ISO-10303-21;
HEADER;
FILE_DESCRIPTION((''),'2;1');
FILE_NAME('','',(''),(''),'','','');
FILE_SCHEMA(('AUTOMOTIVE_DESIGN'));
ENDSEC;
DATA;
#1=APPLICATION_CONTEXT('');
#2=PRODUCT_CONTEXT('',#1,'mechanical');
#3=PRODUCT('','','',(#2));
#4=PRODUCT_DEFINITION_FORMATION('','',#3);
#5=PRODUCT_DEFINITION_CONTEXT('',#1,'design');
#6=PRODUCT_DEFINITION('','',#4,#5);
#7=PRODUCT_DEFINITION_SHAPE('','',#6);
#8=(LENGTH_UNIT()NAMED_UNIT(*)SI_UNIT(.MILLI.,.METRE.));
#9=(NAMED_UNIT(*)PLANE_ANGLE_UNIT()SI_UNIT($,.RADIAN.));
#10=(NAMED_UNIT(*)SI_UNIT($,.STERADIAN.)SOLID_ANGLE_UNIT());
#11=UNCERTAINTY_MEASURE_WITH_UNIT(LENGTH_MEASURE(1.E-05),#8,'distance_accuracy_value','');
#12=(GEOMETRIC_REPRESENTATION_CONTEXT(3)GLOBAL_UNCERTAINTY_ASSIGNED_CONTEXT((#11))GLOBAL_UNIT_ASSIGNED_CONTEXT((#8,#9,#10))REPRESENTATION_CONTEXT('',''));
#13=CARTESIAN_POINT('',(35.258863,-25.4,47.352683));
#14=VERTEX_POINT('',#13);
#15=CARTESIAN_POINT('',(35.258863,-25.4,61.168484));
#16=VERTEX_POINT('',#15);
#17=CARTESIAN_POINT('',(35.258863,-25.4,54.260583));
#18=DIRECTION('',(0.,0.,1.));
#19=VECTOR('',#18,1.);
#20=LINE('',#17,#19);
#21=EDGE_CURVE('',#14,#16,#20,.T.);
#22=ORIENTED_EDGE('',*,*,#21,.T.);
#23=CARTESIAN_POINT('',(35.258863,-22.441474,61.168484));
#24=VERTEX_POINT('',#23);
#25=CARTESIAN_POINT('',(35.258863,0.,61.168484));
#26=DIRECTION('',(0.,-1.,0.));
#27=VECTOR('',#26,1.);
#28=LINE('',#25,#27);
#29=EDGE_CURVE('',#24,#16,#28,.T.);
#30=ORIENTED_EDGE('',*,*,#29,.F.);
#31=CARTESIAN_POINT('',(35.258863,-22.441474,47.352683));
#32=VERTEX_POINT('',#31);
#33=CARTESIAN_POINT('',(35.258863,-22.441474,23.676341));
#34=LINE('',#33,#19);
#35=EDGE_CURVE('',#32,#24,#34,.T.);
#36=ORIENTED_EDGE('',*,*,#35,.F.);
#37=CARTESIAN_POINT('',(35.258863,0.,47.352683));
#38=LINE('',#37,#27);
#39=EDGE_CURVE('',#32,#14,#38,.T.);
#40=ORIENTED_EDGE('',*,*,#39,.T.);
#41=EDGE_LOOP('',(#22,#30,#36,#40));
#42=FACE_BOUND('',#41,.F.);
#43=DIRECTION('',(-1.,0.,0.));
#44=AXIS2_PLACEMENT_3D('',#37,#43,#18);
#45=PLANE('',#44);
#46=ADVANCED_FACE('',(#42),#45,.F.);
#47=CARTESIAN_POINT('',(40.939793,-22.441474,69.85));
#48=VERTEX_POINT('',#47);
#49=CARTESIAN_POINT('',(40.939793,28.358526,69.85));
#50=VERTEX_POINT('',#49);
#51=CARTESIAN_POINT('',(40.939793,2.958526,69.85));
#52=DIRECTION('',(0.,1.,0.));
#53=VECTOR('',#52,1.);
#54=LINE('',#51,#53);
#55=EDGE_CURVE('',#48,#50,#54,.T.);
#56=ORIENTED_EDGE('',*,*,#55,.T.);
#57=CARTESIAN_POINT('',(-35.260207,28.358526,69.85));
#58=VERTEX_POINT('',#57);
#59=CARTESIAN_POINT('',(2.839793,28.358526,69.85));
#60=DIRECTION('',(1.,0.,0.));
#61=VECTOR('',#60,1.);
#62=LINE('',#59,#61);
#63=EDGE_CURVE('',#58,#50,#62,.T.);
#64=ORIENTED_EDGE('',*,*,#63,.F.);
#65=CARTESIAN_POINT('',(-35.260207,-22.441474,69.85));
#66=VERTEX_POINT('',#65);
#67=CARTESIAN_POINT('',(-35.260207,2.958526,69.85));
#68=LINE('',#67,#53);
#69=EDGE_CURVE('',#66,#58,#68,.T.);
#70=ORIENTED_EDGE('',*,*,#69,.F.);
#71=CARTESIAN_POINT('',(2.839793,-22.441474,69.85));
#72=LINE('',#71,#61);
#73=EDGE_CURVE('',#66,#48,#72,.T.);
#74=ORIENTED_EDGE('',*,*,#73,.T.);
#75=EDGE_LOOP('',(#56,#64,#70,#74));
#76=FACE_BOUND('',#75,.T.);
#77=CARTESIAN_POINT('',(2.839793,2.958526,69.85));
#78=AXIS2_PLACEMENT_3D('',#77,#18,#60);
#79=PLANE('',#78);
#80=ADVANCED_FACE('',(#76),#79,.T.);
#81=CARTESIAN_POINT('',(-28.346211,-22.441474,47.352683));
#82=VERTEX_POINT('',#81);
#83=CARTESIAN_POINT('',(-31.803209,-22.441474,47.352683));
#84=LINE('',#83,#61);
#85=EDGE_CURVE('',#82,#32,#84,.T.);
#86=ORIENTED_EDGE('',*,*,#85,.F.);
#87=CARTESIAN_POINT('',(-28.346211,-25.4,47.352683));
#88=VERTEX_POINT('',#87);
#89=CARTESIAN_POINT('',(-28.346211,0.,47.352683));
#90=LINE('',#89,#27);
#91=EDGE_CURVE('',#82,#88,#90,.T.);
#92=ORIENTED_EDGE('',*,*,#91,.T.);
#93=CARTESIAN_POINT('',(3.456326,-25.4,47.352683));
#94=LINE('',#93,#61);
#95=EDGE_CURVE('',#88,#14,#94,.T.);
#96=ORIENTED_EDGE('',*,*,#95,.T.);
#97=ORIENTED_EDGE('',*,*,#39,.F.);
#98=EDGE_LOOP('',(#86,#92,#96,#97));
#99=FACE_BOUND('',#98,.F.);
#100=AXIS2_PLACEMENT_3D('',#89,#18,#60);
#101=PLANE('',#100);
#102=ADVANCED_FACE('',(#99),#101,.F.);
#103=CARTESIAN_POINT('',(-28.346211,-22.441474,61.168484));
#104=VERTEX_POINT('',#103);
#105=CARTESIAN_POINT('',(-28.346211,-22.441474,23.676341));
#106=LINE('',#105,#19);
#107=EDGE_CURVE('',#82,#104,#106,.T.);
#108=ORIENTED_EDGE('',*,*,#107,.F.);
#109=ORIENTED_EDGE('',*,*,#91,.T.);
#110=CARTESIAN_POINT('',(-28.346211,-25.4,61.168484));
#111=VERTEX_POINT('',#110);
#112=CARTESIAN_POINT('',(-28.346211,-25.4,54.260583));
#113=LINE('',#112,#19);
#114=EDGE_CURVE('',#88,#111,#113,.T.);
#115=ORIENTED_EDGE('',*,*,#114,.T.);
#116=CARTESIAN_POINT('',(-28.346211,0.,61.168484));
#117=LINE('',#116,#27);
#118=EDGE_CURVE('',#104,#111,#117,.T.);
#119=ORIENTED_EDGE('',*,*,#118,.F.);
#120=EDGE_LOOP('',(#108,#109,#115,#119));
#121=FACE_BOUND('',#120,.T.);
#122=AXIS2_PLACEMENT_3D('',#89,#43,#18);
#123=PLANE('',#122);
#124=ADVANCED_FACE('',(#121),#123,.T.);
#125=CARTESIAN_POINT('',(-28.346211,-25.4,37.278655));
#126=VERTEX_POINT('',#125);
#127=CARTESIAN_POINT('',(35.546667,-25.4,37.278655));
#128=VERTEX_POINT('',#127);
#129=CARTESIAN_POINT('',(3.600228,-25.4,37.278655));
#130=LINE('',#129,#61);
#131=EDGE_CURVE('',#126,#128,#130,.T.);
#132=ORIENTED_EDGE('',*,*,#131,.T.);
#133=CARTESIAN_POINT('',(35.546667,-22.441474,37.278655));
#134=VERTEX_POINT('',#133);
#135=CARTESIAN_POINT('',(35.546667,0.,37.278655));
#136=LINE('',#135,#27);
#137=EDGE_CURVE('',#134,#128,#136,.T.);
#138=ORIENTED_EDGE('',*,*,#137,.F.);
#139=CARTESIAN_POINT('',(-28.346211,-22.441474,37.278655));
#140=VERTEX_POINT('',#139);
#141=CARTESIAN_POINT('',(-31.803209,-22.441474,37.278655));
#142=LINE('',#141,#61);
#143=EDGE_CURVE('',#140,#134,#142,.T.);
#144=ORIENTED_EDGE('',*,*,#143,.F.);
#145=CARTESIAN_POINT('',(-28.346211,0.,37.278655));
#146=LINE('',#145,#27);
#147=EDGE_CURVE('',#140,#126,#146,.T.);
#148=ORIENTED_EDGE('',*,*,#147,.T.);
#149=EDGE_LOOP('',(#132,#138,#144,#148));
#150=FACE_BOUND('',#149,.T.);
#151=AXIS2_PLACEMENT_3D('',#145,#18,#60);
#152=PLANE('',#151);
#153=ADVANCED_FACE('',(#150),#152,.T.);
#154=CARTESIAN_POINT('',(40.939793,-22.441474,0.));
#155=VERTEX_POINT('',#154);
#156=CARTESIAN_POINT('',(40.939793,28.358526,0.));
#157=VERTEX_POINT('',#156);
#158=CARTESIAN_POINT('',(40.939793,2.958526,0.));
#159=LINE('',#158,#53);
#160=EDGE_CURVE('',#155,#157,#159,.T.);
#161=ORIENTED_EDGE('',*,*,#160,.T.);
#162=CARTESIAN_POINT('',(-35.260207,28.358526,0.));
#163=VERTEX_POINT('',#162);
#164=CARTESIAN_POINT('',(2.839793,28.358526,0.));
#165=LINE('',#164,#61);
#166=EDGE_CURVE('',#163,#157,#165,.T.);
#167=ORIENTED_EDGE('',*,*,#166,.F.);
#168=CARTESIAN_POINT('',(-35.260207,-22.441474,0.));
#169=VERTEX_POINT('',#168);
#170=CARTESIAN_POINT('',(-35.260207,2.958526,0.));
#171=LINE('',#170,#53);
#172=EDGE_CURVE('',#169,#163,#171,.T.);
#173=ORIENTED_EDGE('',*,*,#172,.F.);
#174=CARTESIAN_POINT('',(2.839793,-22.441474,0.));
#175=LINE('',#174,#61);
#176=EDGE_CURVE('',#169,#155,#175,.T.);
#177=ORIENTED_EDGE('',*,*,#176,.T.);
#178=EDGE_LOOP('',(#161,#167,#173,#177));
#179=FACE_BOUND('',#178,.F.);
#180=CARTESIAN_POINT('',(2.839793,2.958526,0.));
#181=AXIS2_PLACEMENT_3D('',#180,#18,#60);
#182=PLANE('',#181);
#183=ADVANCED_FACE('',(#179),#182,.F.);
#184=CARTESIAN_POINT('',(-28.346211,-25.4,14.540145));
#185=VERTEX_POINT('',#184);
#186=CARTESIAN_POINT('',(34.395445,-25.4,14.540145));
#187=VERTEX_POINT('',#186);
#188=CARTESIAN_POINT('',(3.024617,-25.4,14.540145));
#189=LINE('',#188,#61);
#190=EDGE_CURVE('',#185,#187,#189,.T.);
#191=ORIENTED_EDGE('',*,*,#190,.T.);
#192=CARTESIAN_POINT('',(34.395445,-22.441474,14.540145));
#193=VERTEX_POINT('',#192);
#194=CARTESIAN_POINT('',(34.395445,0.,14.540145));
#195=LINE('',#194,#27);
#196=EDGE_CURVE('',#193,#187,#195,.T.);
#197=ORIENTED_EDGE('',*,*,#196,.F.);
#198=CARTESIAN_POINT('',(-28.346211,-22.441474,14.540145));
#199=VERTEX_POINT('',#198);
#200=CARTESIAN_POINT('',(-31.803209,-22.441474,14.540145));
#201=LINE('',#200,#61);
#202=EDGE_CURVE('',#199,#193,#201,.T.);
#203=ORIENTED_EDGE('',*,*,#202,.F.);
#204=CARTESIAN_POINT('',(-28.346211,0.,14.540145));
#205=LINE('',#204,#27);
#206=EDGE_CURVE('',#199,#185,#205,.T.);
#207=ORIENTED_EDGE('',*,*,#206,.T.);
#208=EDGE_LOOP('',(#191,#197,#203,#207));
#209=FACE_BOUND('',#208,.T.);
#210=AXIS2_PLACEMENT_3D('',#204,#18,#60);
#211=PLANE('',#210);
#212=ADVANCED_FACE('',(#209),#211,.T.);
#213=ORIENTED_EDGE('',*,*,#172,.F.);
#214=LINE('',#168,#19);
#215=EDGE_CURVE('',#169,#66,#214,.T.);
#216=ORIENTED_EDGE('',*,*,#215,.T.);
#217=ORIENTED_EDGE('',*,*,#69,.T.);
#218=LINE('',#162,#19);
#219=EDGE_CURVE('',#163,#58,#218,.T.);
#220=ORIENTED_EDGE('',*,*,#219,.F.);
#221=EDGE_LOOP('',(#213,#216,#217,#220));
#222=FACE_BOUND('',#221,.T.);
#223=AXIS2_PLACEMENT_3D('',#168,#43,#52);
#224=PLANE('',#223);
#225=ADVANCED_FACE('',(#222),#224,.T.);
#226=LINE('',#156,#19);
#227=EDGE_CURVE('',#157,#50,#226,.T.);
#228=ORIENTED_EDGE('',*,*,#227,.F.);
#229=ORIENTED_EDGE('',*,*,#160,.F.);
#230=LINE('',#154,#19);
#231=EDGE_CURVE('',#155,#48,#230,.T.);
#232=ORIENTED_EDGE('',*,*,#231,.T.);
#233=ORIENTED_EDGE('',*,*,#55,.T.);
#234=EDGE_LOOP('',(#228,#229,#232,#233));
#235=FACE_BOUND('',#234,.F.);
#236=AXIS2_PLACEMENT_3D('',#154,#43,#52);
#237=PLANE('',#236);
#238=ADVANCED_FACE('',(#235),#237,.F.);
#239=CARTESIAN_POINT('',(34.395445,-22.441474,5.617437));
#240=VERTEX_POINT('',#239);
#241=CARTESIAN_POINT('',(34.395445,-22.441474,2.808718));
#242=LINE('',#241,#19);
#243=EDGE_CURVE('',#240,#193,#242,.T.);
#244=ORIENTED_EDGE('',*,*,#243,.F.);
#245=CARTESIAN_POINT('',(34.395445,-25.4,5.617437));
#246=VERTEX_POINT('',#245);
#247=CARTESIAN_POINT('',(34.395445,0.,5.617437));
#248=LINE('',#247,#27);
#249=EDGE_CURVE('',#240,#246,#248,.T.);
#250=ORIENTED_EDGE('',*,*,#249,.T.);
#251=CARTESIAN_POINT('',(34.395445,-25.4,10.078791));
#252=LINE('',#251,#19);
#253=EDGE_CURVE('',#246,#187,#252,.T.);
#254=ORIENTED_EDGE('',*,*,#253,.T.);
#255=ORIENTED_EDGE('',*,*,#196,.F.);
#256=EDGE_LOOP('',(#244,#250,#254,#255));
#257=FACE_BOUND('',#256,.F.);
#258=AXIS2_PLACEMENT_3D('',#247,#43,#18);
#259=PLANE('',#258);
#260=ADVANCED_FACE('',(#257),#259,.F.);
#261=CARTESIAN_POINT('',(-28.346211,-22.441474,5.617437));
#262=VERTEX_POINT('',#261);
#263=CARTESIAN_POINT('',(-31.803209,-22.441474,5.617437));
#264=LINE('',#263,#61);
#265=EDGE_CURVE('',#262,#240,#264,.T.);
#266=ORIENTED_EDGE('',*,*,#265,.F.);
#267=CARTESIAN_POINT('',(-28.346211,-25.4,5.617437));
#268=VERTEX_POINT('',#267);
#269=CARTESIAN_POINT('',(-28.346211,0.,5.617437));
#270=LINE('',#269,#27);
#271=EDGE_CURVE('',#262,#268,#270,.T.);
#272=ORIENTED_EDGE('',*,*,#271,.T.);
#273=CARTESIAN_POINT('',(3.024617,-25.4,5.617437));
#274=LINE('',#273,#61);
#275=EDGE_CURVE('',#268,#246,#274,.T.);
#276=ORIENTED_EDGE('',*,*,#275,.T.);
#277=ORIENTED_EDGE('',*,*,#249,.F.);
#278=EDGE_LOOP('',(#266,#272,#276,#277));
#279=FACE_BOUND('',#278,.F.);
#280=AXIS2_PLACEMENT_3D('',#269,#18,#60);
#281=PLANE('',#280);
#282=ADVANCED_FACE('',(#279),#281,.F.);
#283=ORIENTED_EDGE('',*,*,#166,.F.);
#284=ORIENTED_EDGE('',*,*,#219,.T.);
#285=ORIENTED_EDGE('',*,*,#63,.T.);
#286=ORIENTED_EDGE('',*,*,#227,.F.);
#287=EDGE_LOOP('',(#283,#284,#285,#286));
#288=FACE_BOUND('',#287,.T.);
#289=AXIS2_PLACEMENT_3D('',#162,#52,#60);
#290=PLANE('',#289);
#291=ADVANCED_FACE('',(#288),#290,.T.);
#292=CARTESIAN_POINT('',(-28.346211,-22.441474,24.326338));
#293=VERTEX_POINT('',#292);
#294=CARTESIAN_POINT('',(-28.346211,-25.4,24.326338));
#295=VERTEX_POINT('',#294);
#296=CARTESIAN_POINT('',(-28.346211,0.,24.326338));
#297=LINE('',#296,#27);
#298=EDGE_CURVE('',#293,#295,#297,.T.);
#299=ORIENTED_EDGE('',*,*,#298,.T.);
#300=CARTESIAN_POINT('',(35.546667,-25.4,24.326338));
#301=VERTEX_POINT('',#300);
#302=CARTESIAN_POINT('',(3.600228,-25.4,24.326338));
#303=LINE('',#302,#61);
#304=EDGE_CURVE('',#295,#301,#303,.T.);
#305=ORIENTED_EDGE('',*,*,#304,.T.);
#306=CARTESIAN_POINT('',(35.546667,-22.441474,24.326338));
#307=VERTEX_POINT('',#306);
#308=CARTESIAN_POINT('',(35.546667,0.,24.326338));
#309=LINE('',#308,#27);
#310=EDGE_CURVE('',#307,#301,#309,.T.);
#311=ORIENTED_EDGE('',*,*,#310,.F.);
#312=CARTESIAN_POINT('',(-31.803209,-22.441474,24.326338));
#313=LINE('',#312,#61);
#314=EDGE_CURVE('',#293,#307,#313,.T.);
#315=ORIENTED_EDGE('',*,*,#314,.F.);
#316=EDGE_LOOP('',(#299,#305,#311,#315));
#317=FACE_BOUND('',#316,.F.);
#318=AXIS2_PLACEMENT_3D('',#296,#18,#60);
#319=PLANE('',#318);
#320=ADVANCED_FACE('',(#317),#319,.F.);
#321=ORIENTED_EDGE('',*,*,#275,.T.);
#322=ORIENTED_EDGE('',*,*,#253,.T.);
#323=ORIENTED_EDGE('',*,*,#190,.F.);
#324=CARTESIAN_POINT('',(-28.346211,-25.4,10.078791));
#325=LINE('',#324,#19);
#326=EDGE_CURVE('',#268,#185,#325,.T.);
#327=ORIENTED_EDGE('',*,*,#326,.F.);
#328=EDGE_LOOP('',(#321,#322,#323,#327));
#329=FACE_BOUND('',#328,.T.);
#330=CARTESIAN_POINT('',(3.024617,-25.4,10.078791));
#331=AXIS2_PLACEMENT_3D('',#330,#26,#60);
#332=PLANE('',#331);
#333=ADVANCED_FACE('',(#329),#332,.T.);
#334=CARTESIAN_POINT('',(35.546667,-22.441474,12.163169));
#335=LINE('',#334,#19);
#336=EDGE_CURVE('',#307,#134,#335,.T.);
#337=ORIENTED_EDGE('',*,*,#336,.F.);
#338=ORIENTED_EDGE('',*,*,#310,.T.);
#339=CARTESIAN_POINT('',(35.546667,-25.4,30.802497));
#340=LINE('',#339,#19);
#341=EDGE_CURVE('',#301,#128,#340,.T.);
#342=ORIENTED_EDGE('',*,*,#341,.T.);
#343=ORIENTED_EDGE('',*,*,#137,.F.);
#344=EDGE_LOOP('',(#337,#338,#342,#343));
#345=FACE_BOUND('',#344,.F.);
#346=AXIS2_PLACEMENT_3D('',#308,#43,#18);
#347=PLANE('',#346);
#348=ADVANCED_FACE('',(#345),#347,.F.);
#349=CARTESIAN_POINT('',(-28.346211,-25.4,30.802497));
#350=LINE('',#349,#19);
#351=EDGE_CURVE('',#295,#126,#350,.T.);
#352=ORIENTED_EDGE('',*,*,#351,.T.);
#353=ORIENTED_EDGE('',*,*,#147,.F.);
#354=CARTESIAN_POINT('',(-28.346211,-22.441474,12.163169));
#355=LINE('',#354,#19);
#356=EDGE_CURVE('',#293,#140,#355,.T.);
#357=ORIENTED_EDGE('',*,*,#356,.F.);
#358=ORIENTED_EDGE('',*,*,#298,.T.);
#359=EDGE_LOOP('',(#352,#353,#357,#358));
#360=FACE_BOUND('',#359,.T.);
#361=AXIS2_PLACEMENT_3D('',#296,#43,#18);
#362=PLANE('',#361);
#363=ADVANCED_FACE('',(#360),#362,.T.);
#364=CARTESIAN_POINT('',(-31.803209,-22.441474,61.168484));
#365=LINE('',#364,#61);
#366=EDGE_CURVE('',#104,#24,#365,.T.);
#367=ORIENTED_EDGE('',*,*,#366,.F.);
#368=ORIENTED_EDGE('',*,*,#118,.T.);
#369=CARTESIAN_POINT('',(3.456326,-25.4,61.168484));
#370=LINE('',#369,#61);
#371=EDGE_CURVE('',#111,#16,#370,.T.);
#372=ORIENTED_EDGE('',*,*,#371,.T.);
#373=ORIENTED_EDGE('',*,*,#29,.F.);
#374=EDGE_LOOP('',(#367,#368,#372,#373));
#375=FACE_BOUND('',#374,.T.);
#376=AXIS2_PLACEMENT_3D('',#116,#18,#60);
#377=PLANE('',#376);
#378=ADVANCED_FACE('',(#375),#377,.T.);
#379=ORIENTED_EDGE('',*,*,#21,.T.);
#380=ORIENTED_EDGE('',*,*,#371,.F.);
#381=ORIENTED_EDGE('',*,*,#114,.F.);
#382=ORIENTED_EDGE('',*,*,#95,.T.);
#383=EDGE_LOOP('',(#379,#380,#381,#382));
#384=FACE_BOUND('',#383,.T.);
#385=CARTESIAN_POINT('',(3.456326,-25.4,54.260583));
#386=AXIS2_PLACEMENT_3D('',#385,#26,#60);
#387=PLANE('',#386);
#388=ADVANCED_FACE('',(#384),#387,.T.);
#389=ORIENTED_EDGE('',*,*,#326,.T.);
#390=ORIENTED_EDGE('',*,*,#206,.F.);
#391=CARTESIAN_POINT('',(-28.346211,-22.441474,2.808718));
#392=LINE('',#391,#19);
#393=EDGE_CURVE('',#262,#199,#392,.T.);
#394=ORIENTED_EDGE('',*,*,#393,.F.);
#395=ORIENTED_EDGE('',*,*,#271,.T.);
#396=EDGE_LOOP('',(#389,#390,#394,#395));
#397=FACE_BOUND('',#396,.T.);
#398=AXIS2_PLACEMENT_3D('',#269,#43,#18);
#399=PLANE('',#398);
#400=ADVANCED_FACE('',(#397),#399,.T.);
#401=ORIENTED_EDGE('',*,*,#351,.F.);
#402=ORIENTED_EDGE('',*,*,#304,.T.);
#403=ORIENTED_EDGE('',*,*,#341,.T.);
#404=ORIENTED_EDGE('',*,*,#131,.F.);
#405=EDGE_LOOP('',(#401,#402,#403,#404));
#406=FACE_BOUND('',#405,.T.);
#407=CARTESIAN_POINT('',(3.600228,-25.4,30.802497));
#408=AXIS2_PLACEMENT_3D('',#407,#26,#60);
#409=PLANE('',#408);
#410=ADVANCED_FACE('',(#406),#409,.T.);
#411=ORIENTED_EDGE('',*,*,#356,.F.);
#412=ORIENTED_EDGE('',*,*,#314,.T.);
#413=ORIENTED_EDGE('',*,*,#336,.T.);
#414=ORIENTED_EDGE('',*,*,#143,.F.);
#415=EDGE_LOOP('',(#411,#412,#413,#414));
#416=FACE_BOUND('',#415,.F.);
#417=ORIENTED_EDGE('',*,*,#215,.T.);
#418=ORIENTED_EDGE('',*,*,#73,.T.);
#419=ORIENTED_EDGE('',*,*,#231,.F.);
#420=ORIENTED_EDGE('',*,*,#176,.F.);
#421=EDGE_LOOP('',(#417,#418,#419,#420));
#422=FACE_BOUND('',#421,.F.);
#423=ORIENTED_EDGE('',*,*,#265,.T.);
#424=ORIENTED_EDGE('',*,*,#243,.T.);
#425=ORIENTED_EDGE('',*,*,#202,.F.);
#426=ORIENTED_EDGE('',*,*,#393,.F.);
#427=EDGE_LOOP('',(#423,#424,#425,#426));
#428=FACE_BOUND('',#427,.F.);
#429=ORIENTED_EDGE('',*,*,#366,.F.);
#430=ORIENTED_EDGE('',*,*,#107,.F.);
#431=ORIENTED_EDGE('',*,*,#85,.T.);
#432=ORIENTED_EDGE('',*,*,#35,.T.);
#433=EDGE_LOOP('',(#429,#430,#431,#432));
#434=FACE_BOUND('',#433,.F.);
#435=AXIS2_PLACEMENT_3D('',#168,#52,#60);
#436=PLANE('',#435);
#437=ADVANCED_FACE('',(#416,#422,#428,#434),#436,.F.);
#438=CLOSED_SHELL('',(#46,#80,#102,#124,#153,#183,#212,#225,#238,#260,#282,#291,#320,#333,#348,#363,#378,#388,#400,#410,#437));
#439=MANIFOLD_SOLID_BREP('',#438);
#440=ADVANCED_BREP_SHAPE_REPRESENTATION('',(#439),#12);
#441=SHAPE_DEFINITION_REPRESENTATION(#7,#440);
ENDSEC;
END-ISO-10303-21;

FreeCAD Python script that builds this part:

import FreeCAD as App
import Part
import Sketcher

V = App.Vector
Q = App.Units.Quantity


def add_polygon(sketch, points):
    """Adds a closed chain of lines whose ends are joined by coincident constraints."""
    first, n = sketch.GeometryCount, len(points)
    for a, b in zip(points, points[1:] + points[:1]):
        sketch.addGeometry(Part.LineSegment(App.Vector(*a, 0), App.Vector(*b, 0)), False)
    for i in range(n):
        sketch.addConstraint(Sketcher.Constraint("Coincident", first + i, 2, first + (i + 1) % n, 1))

doc = App.newDocument("Part")
body = doc.addObject("PartDesign::Body", "Body")

# Sketch on XY plane
sketch1 = doc.addObject("Sketcher::SketchObject", "Sketch")
body.addObject(sketch1)
sketch1.AttachmentSupport = (doc.XY_Plane, [""])
sketch1.MapMode = "FlatFace"
add_polygon(sketch1, [(-35.260207, 28.358526), (-35.260207, -22.441474), (40.939793, -22.441474), (40.939793, 28.358526)])  # lines 0-3
sketch1.addConstraint([
    Sketcher.Constraint("Vertical", 0),
    Sketcher.Constraint("Horizontal", 1),
    Sketcher.Constraint("Vertical", 2),
    Sketcher.Constraint("Horizontal", 3),
    Sketcher.Constraint("DistanceX", 1, 1, 1, 2, Q("3 in")),
    Sketcher.Constraint("DistanceY", 0, 2, 0, 1, Q("2 in")),
    Sketcher.Constraint("DistanceX", 0, 2, -1, 1, Q("35.260207 mm")),
    Sketcher.Constraint("DistanceY", 0, 2, -1, 1, Q("22.441474 mm")),
])
pad1 = doc.addObject("PartDesign::Pad", "Pad")
body.addObject(pad1)
pad1.Profile = sketch1
pad1.Length = Q("2.75 in")

# Sketch on XZ plane
sketch2 = doc.addObject("Sketcher::SketchObject", "Sketch001")
body.addObject(sketch2)
sketch2.AttachmentSupport = (doc.XZ_Plane, [""])
sketch2.MapMode = "FlatFace"
add_polygon(sketch2, [(-28.346211, 61.168484), (-28.346211, 47.352683), (35.258863, 47.352683), (35.258863, 61.168484)])  # lines 0-3
add_polygon(sketch2, [(-28.346211, 37.278655), (-28.346211, 24.326338), (35.546667, 24.326338), (35.546667, 37.278655)])  # lines 4-7
add_polygon(sketch2, [(-28.346211, 14.540145), (-28.346211, 5.617437), (34.395445, 5.617437), (34.395445, 14.540145)])  # lines 8-11
sketch2.addConstraint([
    Sketcher.Constraint("Vertical", 0),
    Sketcher.Constraint("Horizontal", 1),
    Sketcher.Constraint("Vertical", 2),
    Sketcher.Constraint("Horizontal", 3),
    Sketcher.Constraint("Vertical", 4),
    Sketcher.Constraint("Horizontal", 5),
    Sketcher.Constraint("Vertical", 6),
    Sketcher.Constraint("Horizontal", 7),
    Sketcher.Constraint("Vertical", 8),
    Sketcher.Constraint("Horizontal", 9),
    Sketcher.Constraint("Vertical", 10),
    Sketcher.Constraint("Horizontal", 11),
    Sketcher.Constraint("Vertical", 3, 2, 4, 2),
    Sketcher.Constraint("Vertical", 7, 2, 8, 2),
    Sketcher.Constraint("DistanceY", 0, 2, 0, 1, Q("13.815801 mm")),
    Sketcher.Constraint("DistanceX", 5, 1, 5, 2, Q("63.892879 mm")),
    Sketcher.Constraint("DistanceY", 8, 2, 4, 2, Q("18.708901 mm")),
    Sketcher.Constraint("DistanceX", 1, 1, 1, 2, Q("63.605074 mm")),
    Sketcher.Constraint("DistanceX", 9, 1, 9, 2, Q("62.741656 mm")),
    Sketcher.Constraint("DistanceY", 4, 2, 4, 1, Q("12.952317 mm")),
    Sketcher.Constraint("DistanceY", 8, 2, 8, 1, Q("8.922708 mm")),
    Sketcher.Constraint("DistanceX", 0, 2, -1, 1, Q("28.346211 mm")),
    Sketcher.Constraint("DistanceY", -1, 1, 4, 2, Q("24.326338 mm")),
    Sketcher.Constraint("DistanceY", 6, 2, 2, 2, Q("23.889828 mm")),
])
pad2 = doc.addObject("PartDesign::Pad", "Pad001")
body.addObject(pad2)
pad2.Profile = sketch2
pad2.Length = Q("1 in")

doc.recompute()
